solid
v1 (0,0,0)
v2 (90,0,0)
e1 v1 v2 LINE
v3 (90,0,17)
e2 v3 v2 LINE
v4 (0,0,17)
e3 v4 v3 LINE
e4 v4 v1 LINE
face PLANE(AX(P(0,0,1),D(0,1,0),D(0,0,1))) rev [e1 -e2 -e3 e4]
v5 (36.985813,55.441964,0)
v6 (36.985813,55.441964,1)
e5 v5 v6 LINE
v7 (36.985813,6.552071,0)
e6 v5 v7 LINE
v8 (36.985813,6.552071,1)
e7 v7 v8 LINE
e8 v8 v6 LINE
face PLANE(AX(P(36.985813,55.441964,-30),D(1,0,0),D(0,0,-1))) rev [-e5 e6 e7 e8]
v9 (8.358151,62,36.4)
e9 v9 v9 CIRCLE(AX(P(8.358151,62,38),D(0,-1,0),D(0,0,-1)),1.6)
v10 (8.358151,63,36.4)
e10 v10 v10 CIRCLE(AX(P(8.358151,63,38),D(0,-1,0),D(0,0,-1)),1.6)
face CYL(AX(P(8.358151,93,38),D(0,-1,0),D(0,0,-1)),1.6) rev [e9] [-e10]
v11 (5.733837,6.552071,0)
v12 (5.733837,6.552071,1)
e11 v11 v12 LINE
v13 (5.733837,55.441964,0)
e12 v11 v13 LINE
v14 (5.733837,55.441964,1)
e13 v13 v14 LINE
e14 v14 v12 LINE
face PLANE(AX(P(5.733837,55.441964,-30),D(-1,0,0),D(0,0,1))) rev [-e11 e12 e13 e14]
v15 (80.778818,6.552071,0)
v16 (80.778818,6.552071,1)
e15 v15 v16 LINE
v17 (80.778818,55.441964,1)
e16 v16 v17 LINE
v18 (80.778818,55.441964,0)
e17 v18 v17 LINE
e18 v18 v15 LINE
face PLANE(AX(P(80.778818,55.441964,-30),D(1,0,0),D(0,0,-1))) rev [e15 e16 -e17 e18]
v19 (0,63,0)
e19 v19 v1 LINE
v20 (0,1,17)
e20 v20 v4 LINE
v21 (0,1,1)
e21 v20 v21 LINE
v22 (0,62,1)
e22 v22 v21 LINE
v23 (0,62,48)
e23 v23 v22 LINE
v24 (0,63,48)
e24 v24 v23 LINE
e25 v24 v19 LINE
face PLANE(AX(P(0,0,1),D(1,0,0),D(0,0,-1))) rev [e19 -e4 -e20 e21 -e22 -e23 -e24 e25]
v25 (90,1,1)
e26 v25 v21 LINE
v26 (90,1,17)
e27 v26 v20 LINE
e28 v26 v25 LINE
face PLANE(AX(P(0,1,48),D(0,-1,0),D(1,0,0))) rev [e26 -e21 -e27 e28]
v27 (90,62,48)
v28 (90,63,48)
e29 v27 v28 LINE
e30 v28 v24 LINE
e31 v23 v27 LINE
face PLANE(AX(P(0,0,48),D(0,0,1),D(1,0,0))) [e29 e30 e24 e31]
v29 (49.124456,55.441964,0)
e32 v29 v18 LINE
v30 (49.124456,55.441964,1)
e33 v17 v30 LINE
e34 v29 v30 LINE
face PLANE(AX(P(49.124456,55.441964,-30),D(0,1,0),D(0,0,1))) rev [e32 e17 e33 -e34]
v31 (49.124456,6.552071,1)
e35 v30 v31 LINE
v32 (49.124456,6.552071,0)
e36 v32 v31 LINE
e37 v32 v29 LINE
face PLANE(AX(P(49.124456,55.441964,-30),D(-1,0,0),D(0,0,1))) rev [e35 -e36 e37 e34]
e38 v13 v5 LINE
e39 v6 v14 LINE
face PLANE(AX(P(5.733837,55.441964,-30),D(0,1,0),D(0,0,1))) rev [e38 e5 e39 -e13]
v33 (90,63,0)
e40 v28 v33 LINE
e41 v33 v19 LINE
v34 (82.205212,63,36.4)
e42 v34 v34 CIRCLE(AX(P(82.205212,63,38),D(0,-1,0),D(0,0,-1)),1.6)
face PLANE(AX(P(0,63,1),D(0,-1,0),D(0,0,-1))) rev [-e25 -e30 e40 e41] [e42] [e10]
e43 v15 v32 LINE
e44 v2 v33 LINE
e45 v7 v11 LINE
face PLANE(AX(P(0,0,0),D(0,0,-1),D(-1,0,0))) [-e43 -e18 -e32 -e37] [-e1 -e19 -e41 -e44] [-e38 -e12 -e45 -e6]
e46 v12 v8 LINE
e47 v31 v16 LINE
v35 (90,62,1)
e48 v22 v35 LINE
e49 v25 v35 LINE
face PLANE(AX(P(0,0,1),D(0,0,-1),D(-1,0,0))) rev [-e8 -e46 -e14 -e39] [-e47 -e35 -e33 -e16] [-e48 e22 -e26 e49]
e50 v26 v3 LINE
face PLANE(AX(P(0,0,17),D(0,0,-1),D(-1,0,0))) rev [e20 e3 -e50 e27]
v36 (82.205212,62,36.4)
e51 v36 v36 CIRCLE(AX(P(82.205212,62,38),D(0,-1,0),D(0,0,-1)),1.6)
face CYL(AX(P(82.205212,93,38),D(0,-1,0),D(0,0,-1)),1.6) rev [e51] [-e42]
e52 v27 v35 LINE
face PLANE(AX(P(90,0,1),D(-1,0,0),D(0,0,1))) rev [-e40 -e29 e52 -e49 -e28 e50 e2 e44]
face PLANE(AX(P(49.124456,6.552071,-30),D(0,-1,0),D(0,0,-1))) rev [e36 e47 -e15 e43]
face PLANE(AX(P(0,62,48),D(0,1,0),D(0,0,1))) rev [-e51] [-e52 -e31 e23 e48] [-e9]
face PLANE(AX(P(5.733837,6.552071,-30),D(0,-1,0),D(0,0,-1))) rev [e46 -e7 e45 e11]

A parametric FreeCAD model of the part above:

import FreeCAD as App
import Part
import Sketcher
from FreeCAD import Vector

doc = App.newDocument("Part")
params = doc.addObject("Spreadsheet::Sheet", "Params")
for row, (alias, value) in enumerate([
    ("sketch1_width", "90 mm"),
    ("sketch1_height", "63 mm"),
    ("pad1_length", "1 mm"),
    ("sketch2_width", "90 mm"),
    ("sketch2_height", "1 mm"),
    ("pad2_length", "47 mm"),
    ("sketch3_height", "1 mm"),
    ("pocket1_length", "31 mm"),
    ("pocket2_length", "31 mm"),
    ("sketch5_diameter", "3.2 mm"),
    ("pocket3_length", "31 mm"),
], start=1):
    params.set(f"A{row}", alias)
    params.set(f"B{row}", "=" + value)
    params.setAlias(f"B{row}", alias)

body = doc.addObject("PartDesign::Body", "Body")

# Sketch on XY plane
sketch1 = body.newObject("Sketcher::SketchObject", "Sketch")
sketch1.AttachmentSupport = (doc.getObject("XY_Plane"), [""])
sketch1.MapMode = "FlatFace"
sketch1.addGeometry(Part.LineSegment(Vector(0, 63, 0), Vector(0, 0, 0)), False)
sketch1.addGeometry(Part.LineSegment(Vector(0, 0, 0), Vector(90, 0, 0)), False)
sketch1.addGeometry(Part.LineSegment(Vector(90, 0, 0), Vector(90, 63, 0)), False)
sketch1.addGeometry(Part.LineSegment(Vector(90, 63, 0), Vector(0, 63, 0)), False)
sketch1.addConstraint(Sketcher.Constraint("Coincident", 0, 2, 1, 1))
sketch1.addConstraint(Sketcher.Constraint("Coincident", 1, 2, 2, 1))
sketch1.addConstraint(Sketcher.Constraint("Coincident", 2, 2, 3, 1))
sketch1.addConstraint(Sketcher.Constraint("Coincident", 3, 2, 0, 1))
sketch1.addConstraint(Sketcher.Constraint("Vertical", 0))
sketch1.addConstraint(Sketcher.Constraint("Horizontal", 1))
sketch1.addConstraint(Sketcher.Constraint("Vertical", 2))
sketch1.addConstraint(Sketcher.Constraint("Horizontal", 3))
sketch1.addConstraint(Sketcher.Constraint("Coincident", 0, 2, -1, 1))
sketch1.addConstraint(Sketcher.Constraint("DistanceX", 1, 1, 1, 2, 90.0))
sketch1.addConstraint(Sketcher.Constraint("DistanceY", 0, 2, 0, 1, 63.0))
sketch1.setExpression("Constraints[9]", "Params.sketch1_width")
sketch1.setExpression("Constraints[10]", "Params.sketch1_height")
pad1 = body.newObject("PartDesign::Pad", "Pad")
pad1.Profile = sketch1
pad1.setExpression("Length", "Params.pad1_length")

# Sketch on XY plane
sketch2 = body.newObject("Sketcher::SketchObject", "Sketch001")
sketch2.AttachmentSupport = (doc.getObject("XY_Plane"), [""])
sketch2.MapMode = "FlatFace"
sketch2.AttachmentOffset = App.Placement(Vector(0, 0, 1), App.Rotation())
sketch2.addGeometry(Part.LineSegment(Vector(0, 63, 0), Vector(0, 62, 0)), False)
sketch2.addGeometry(Part.LineSegment(Vector(0, 62, 0), Vector(90, 62, 0)), False)
sketch2.addGeometry(Part.LineSegment(Vector(90, 62, 0), Vector(90, 63, 0)), False)
sketch2.addGeometry(Part.LineSegment(Vector(90, 63, 0), Vector(0, 63, 0)), False)
sketch2.addGeometry(Part.LineSegment(Vector(0, 1, 0), Vector(0, 0, 0)), False)
sketch2.addGeometry(Part.LineSegment(Vector(0, 0, 0), Vector(90, 0, 0)), False)
sketch2.addGeometry(Part.LineSegment(Vector(90, 0, 0), Vector(90, 1, 0)), False)
sketch2.addGeometry(Part.LineSegment(Vector(90, 1, 0), Vector(0, 1, 0)), False)
sketch2.addConstraint(Sketcher.Constraint("Coincident", 0, 2, 1, 1))
sketch2.addConstraint(Sketcher.Constraint("Coincident", 1, 2, 2, 1))
sketch2.addConstraint(Sketcher.Constraint("Coincident", 2, 2, 3, 1))
sketch2.addConstraint(Sketcher.Constraint("Coincident", 3, 2, 0, 1))
sketch2.addConstraint(Sketcher.Constraint("Coincident", 4, 2, 5, 1))
sketch2.addConstraint(Sketcher.Constraint("Coincident", 5, 2, 6, 1))
sketch2.addConstraint(Sketcher.Constraint("Coincident", 6, 2, 7, 1))
sketch2.addConstraint(Sketcher.Constraint("Coincident", 7, 2, 4, 1))
sketch2.addConstraint(Sketcher.Constraint("Vertical", 0))
sketch2.addConstraint(Sketcher.Constraint("Horizontal", 1))
sketch2.addConstraint(Sketcher.Constraint("Vertical", 2))
sketch2.addConstraint(Sketcher.Constraint("Horizontal", 3))
sketch2.addConstraint(Sketcher.Constraint("Vertical", 4))
sketch2.addConstraint(Sketcher.Constraint("Horizontal", 5))
sketch2.addConstraint(Sketcher.Constraint("Vertical", 6))
sketch2.addConstraint(Sketcher.Constraint("Horizontal", 7))
sketch2.addConstraint(Sketcher.Constraint("Coincident", 4, 2, -1, 1))
sketch2.addConstraint(Sketcher.Constraint("PointOnObject", 0, 2, -2))
sketch2.addConstraint(Sketcher.Constraint("Vertical", 2, 2, 5, 2))
sketch2.addConstraint(Sketcher.Constraint("Equal", 2, 4))
sketch2.addConstraint(Sketcher.Constraint("DistanceX", 1, 1, 1, 2, 90.0))
sketch2.addConstraint(Sketcher.Constraint("DistanceY", 0, 2, 0, 1, 1.0))
sketch2.addConstraint(Sketcher.Constraint("DistanceY", -1, 1, 0, 2, 62.0))
sketch2.setExpression("Constraints[20]", "Params.sketch2_width")
sketch2.setExpression("Constraints[21]", "Params.sketch2_height")
pad2 = body.newObject("PartDesign::Pad", "Pad001")
pad2.Profile = sketch2
pad2.setExpression("Length", "Params.pad2_length")

# Sketch on XY plane
sketch3 = body.newObject("Sketcher::SketchObject", "Sketch002")
sketch3.AttachmentSupport = (doc.getObject("XY_Plane"), [""])
sketch3.MapMode = "FlatFace"
sketch3.AttachmentOffset = App.Placement(Vector(0, 0, 48), App.Rotation())
sketch3.addGeometry(Part.LineSegment(Vector(0, 1, 0), Vector(0, 0, 0)), False)
sketch3.addGeometry(Part.LineSegment(Vector(0, 0, 0), Vector(101.4, 0, 0)), False)
sketch3.addGeometry(Part.LineSegment(Vector(101.4, 0, 0), Vector(101.4, 1, 0)), False)
sketch3.addGeometry(Part.LineSegment(Vector(101.4, 1, 0), Vector(0, 1, 0)), False)
sketch3.addConstraint(Sketcher.Constraint("Coincident", 0, 2, 1, 1))
sketch3.addConstraint(Sketcher.Constraint("Coincident", 1, 2, 2, 1))
sketch3.addConstraint(Sketcher.Constraint("Coincident", 2, 2, 3, 1))
sketch3.addConstraint(Sketcher.Constraint("Coincident", 3, 2, 0, 1))
sketch3.addConstraint(Sketcher.Constraint("Vertical", 0))
sketch3.addConstraint(Sketcher.Constraint("Horizontal", 1))
sketch3.addConstraint(Sketcher.Constraint("Vertical", 2))
sketch3.addConstraint(Sketcher.Constraint("Horizontal", 3))
sketch3.addConstraint(Sketcher.Constraint("Coincident", 0, 2, -1, 1))
sketch3.addConstraint(Sketcher.Constraint("DistanceY", 0, 2, 0, 1, 1.0))
sketch3.addConstraint(Sketcher.Constraint("DistanceX", 1, 1, 1, 2, 101.367566))
sketch3.setExpression("Constraints[9]", "Params.sketch3_height")
pocket1 = body.newObject("PartDesign::Pocket", "Pocket")
pocket1.Profile = sketch3
pocket1.setExpression("Length", "Params.pocket1_length")

# Sketch on XY plane
sketch4 = body.newObject("Sketcher::SketchObject", "Sketch003")
sketch4.AttachmentSupport = (doc.getObject("XY_Plane"), [""])
sketch4.MapMode = "FlatFace"
sketch4.AttachmentOffset = App.Placement(Vector(0, 0, 1), App.Rotation())
sketch4.addGeometry(Part.LineSegment(Vector(6, 55, 0), Vector(6, 7, 0)), False)
sketch4.addGeometry(Part.LineSegment(Vector(6, 7, 0), Vector(37, 7, 0)), False)
sketch4.addGeometry(Part.LineSegment(Vector(37, 7, 0), Vector(37, 55, 0)), False)
sketch4.addGeometry(Part.LineSegment(Vector(37, 55, 0), Vector(6, 55, 0)), False)
sketch4.addGeometry(Part.LineSegment(Vector(49, 55, 0), Vector(49, 7, 0)), False)
sketch4.addGeometry(Part.LineSegment(Vector(49, 7, 0), Vector(81, 7, 0)), False)
sketch4.addGeometry(Part.LineSegment(Vector(81, 7, 0), Vector(81, 55, 0)), False)
sketch4.addGeometry(Part.LineSegment(Vector(81, 55, 0), Vector(49, 55, 0)), False)
sketch4.addConstraint(Sketcher.Constraint("Coincident", 0, 2, 1, 1))
sketch4.addConstraint(Sketcher.Constraint("Coincident", 1, 2, 2, 1))
sketch4.addConstraint(Sketcher.Constraint("Coincident", 2, 2, 3, 1))
sketch4.addConstraint(Sketcher.Constraint("Coincident", 3, 2, 0, 1))
sketch4.addConstraint(Sketcher.Constraint("Coincident", 4, 2, 5, 1))
sketch4.addConstraint(Sketcher.Constraint("Coincident", 5, 2, 6, 1))
sketch4.addConstraint(Sketcher.Constraint("Coincident", 6, 2, 7, 1))
sketch4.addConstraint(Sketcher.Constraint("Coincident", 7, 2, 4, 1))
sketch4.addConstraint(Sketcher.Constraint("Vertical", 0))
sketch4.addConstraint(Sketcher.Constraint("Horizontal", 1))
sketch4.addConstraint(Sketcher.Constraint("Vertical", 2))
sketch4.addConstraint(Sketcher.Constraint("Horizontal", 3))
sketch4.addConstraint(Sketcher.Constraint("Vertical", 4))
sketch4.addConstraint(Sketcher.Constraint("Horizontal", 5))
sketch4.addConstraint(Sketcher.Constraint("Vertical", 6))
sketch4.addConstraint(Sketcher.Constraint("Horizontal", 7))
sketch4.addConstraint(Sketcher.Constraint("Horizontal", 1, 2, 4, 2))
sketch4.addConstraint(Sketcher.Constraint("Horizontal", 3, 2, 6, 2))
sketch4.addConstraint(Sketcher.Constraint("DistanceX", 5, 1, 5, 2, 31.654362))
sketch4.addConstraint(Sketcher.Constraint("DistanceX", 1, 1, 1, 2, 31.251976))
sketch4.addConstraint(Sketcher.Constraint("DistanceY", 0, 2, 0, 1, 48.889894))
sketch4.addConstraint(Sketcher.Constraint("DistanceY", -1, 1, 0, 2, 6.552071))
sketch4.addConstraint(Sketcher.Constraint("DistanceX", 0, 2, 4, 2, 43.390619))
sketch4.addConstraint(Sketcher.Constraint("DistanceX", -1, 1, 0, 2, 5.733837))
pocket2 = body.newObject("PartDesign::Pocket", "Pocket001")
pocket2.Profile = sketch4
pocket2.setExpression("Length", "Params.pocket2_length")

# Sketch on XZ plane
sketch5 = body.newObject("Sketcher::SketchObject", "Sketch004")
sketch5.AttachmentSupport = (doc.getObject("XZ_Plane"), [""])
sketch5.MapMode = "FlatFace"
sketch5.AttachmentOffset = App.Placement(Vector(0, 0, -62), App.Rotation())
sketch5.addGeometry(Part.Circle(Vector(8.4, 38, 0), Vector(0, 0, 1), 1.6), False)
sketch5.addGeometry(Part.Circle(Vector(82.2, 38, 0), Vector(0, 0, 1), 1.6), False)
sketch5.addConstraint(Sketcher.Constraint("Equal", 0, 1))
sketch5.addConstraint(Sketcher.Constraint("Horizontal", 0, 3, 1, 3))
sketch5.addConstraint(Sketcher.Constraint("Diameter", 0, 3.2))
sketch5.addConstraint(Sketcher.Constraint("DistanceY", -1, 1, 0, 3, 38.0))
sketch5.addConstraint(Sketcher.Constraint("DistanceX", -1, 1, 0, 3, 8.358151))
sketch5.addConstraint(Sketcher.Constraint("DistanceX", 0, 3, 1, 3, 73.847062))
sketch5.setExpression("Constraints[2]", "Params.sketch5_diameter")
pocket3 = body.newObject("PartDesign::Pocket", "Pocket002")
pocket3.Profile = sketch5
pocket3.setExpression("Length", "Params.pocket3_length")

doc.recompute()
